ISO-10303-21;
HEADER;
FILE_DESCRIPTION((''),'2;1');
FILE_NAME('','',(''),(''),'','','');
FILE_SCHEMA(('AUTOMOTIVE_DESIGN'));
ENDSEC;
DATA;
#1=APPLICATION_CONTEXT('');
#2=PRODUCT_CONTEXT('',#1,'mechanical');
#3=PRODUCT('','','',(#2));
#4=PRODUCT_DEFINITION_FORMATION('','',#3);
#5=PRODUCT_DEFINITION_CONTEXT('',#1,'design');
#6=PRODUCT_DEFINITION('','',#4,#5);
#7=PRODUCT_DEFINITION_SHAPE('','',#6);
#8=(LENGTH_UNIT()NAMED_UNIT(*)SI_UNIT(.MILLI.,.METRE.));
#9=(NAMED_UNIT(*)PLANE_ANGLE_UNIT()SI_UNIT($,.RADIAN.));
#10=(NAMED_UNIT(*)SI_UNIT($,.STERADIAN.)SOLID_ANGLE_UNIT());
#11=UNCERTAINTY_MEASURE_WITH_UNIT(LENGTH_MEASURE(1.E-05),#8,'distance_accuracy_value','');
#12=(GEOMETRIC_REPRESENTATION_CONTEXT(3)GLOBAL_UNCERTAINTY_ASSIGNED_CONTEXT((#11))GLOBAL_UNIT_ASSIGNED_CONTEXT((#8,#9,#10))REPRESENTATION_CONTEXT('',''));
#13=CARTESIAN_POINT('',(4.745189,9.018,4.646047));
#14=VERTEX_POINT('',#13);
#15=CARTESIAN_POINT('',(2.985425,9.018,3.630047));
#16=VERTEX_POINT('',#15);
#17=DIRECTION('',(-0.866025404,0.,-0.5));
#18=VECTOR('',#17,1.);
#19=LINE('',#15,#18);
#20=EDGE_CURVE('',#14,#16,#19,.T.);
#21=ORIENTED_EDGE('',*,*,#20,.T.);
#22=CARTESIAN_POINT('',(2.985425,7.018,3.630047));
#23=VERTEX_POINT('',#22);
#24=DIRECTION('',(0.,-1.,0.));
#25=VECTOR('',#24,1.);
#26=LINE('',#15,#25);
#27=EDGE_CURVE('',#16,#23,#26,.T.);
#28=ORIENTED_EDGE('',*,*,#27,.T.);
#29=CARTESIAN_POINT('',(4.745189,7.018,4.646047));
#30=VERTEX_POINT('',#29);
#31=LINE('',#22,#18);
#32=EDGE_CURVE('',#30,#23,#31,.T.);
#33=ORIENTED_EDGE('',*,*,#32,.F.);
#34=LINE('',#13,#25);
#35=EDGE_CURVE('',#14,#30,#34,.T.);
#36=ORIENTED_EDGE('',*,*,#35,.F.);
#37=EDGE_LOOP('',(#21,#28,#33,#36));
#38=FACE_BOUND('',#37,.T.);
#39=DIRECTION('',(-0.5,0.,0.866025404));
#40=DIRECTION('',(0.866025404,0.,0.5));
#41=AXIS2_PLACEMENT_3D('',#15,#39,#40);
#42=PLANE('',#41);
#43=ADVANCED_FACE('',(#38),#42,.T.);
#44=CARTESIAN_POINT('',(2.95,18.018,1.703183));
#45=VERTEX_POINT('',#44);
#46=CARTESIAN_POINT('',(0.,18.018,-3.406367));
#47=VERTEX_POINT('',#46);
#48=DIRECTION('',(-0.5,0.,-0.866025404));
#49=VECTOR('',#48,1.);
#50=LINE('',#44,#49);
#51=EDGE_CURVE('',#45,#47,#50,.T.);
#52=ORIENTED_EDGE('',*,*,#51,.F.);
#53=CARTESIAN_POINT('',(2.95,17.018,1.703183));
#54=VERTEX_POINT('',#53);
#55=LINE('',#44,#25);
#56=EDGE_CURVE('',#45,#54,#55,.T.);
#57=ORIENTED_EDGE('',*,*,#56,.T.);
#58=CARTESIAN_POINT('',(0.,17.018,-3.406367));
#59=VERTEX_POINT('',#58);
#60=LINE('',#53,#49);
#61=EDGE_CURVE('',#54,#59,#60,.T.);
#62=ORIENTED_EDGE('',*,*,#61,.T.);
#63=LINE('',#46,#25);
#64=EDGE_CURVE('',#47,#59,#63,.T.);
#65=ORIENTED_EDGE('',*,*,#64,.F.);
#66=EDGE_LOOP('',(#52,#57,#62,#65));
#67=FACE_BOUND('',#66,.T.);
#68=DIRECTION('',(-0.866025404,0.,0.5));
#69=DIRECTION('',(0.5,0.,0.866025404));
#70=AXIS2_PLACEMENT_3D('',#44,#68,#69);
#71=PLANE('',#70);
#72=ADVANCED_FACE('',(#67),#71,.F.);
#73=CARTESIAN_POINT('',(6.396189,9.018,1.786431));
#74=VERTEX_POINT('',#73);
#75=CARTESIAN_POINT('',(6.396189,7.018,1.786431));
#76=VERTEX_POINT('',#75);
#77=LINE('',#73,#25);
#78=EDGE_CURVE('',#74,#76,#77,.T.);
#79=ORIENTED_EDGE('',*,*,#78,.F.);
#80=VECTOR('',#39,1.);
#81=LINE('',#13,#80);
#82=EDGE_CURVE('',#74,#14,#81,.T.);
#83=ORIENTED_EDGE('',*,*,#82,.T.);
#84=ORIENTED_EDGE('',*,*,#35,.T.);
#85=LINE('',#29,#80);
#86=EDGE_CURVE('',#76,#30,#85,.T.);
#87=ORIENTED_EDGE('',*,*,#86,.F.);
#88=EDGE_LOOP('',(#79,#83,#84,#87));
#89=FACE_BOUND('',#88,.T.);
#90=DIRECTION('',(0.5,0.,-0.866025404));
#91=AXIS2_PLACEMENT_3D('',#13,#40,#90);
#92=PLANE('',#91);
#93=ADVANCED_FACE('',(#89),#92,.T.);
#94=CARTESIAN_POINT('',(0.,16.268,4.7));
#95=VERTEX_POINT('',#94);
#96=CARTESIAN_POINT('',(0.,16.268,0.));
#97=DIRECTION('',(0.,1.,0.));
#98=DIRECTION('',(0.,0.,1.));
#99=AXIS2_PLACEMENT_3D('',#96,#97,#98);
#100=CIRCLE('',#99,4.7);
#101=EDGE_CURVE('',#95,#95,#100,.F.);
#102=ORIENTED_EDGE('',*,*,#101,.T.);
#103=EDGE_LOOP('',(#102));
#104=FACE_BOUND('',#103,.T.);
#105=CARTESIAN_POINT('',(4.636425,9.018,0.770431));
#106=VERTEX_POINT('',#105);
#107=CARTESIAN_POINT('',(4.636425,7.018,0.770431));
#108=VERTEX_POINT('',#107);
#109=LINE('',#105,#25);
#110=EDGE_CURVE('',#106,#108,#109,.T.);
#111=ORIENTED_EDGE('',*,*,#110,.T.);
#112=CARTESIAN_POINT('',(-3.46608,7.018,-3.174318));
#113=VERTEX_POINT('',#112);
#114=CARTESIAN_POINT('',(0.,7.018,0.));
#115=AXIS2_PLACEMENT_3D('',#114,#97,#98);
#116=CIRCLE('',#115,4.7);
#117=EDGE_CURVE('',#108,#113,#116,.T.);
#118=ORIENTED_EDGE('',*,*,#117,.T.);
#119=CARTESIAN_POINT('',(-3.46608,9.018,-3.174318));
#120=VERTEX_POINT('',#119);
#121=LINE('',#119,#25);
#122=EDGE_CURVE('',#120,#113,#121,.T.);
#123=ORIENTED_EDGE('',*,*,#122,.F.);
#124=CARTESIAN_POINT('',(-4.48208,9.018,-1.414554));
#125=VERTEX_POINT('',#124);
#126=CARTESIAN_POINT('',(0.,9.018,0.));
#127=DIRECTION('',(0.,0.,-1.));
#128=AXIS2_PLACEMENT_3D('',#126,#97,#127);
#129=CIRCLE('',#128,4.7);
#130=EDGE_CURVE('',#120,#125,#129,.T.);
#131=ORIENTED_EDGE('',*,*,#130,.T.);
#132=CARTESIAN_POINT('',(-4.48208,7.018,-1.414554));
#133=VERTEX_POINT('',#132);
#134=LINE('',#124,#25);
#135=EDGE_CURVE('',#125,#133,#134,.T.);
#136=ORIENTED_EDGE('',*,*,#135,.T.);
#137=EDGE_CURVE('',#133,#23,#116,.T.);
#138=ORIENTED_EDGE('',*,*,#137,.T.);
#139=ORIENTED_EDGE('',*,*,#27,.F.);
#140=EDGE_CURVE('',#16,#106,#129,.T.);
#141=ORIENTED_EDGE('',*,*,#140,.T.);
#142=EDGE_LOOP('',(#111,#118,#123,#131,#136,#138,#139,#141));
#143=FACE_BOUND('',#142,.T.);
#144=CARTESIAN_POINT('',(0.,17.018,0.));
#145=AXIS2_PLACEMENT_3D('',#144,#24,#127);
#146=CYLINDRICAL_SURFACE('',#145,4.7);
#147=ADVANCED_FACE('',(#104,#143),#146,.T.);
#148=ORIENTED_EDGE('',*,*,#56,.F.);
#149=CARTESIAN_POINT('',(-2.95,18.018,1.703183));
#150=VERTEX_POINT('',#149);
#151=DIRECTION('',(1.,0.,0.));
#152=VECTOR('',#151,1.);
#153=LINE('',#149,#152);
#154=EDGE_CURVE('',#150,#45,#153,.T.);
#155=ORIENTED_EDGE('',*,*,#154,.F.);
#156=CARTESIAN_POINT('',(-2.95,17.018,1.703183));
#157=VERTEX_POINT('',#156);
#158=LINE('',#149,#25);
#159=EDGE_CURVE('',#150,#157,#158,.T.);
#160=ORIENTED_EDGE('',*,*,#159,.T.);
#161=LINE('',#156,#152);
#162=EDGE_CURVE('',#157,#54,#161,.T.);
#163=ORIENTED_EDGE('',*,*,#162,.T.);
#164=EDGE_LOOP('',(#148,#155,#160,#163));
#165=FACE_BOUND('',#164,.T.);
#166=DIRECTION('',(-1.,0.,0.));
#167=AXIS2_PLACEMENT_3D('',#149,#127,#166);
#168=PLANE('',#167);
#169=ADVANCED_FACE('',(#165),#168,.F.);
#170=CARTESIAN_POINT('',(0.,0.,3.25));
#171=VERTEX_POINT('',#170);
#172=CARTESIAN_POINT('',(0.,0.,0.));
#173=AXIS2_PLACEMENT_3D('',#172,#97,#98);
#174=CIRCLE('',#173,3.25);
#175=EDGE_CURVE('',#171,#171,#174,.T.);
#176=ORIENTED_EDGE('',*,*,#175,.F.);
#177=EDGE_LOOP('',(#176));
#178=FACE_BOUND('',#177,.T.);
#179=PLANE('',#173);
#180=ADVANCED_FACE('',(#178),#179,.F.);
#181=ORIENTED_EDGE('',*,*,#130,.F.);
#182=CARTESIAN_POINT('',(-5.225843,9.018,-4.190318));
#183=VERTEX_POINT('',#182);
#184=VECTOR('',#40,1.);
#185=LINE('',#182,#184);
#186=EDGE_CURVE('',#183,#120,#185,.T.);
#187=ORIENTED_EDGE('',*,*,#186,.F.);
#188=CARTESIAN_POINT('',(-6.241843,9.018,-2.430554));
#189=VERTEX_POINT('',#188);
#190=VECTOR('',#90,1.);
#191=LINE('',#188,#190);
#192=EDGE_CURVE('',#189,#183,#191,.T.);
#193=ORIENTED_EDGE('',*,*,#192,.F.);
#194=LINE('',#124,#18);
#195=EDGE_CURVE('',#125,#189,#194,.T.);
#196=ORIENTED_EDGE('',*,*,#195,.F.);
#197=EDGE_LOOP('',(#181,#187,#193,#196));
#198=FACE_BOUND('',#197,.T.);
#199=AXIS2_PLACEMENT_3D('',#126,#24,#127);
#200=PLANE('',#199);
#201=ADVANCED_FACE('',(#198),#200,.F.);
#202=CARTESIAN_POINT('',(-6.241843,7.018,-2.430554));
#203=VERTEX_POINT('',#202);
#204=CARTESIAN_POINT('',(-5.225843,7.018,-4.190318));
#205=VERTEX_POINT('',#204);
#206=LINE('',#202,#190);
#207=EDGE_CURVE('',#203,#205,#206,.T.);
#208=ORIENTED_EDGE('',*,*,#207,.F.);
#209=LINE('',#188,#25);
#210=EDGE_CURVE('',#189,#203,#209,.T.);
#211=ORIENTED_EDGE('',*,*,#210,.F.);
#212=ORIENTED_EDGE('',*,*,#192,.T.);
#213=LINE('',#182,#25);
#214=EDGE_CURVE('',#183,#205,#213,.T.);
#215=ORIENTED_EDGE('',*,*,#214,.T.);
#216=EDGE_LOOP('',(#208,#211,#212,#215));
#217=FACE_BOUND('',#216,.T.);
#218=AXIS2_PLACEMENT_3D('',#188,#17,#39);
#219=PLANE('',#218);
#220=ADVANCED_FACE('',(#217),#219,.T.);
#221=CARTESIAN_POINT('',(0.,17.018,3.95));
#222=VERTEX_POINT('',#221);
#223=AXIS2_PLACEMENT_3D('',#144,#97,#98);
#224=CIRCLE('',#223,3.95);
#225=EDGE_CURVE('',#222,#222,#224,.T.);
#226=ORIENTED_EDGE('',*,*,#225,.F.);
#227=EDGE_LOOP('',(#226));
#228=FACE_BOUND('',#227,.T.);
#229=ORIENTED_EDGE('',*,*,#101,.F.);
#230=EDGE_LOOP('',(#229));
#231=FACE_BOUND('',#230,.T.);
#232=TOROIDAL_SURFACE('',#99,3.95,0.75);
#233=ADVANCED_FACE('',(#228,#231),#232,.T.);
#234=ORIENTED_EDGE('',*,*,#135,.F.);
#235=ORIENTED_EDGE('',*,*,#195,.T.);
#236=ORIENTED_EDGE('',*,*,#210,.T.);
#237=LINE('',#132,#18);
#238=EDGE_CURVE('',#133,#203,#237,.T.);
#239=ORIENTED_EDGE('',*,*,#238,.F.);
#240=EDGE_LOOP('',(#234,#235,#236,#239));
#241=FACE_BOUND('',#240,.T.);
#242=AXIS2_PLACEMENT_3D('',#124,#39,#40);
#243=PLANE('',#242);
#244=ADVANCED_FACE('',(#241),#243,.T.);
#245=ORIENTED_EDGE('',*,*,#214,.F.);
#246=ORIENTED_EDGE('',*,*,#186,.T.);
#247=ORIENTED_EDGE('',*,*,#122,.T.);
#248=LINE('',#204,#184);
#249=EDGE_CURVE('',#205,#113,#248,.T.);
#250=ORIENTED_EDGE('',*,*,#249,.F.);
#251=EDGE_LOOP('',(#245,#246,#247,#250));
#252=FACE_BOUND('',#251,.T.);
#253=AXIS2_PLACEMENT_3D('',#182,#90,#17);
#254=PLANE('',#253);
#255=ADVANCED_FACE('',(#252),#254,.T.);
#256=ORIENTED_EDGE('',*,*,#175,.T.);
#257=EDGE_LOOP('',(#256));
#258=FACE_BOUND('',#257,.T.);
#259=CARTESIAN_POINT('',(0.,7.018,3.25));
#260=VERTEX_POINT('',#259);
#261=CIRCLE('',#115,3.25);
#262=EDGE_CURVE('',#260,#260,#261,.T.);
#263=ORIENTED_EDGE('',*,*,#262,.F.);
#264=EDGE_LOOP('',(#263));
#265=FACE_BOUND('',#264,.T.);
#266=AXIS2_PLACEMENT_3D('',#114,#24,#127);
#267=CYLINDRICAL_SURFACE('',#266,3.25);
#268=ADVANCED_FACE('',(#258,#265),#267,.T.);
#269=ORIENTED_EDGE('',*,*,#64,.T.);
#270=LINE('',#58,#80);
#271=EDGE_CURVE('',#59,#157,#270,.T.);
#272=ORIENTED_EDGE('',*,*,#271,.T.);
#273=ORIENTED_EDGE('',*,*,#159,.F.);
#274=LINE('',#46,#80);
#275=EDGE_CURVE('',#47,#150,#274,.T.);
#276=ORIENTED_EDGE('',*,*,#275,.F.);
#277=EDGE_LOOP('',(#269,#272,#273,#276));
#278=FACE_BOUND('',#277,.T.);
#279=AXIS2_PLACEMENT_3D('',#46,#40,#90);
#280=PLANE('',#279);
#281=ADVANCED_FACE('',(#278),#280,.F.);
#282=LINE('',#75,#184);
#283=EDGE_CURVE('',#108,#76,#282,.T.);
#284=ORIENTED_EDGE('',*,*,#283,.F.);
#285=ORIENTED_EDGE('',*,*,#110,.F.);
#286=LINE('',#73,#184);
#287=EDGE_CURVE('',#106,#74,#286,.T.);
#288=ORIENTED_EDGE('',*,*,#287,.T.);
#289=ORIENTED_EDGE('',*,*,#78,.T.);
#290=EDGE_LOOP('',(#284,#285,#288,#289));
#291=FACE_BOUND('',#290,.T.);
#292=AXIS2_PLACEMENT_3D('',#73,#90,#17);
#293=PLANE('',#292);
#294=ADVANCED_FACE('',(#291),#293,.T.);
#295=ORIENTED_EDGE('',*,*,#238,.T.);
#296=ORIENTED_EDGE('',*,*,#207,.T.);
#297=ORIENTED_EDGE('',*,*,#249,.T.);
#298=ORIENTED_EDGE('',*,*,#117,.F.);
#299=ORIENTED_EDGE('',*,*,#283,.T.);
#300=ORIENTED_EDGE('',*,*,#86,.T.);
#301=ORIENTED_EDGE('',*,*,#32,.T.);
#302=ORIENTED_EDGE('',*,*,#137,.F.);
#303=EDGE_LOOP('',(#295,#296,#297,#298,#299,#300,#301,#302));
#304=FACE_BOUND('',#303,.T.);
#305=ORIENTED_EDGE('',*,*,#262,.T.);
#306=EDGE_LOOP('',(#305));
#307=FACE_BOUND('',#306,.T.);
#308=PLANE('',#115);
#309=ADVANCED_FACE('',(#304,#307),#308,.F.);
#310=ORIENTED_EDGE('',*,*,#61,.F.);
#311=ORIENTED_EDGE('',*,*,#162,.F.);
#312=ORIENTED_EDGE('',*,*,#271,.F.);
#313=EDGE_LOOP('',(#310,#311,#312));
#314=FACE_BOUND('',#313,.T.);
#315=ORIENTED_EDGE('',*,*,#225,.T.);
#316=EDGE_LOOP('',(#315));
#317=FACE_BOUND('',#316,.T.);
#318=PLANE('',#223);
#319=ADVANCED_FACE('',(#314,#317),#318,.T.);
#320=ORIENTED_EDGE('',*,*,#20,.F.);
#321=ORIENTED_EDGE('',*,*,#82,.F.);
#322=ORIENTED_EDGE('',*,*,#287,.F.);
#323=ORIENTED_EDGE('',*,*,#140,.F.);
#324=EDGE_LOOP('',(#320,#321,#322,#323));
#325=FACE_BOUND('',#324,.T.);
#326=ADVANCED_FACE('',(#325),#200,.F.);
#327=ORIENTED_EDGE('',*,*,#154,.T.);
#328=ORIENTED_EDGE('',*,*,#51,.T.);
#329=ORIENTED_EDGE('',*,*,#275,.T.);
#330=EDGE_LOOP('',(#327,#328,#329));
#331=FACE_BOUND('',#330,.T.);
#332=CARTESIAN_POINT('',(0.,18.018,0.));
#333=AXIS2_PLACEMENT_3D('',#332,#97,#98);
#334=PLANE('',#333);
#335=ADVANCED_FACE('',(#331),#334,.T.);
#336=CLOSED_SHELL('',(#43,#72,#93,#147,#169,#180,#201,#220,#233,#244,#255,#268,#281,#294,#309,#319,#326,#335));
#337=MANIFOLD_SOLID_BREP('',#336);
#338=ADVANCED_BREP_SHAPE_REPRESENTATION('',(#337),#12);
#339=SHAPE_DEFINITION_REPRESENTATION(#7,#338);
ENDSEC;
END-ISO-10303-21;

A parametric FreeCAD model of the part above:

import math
import FreeCAD as App
import Part
import Sketcher

V = App.Vector
Q = App.Units.Quantity


def edges_at(feature, points):
    """Names of the edges that pass closest to the given points."""
    edges = feature.Shape.Edges
    near = lambda p: min(range(len(edges)), key=lambda i: edges[i].distToShape(Part.Vertex(*p))[0])
    return sorted({f"Edge{near(p) + 1}" for p in points})


def add_polygon(sketch, points):
    """Adds a closed chain of lines whose ends are joined by coincident constraints."""
    first, n = sketch.GeometryCount, len(points)
    for a, b in zip(points, points[1:] + points[:1]):
        sketch.addGeometry(Part.LineSegment(App.Vector(*a, 0), App.Vector(*b, 0)), False)
    for i in range(n):
        sketch.addConstraint(Sketcher.Constraint("Coincident", first + i, 2, first + (i + 1) % n, 1))

doc = App.newDocument("Part")
body = doc.addObject("PartDesign::Body", "Body")

# Sketch on XZ plane
sketch1 = body.newObject("Sketcher::SketchObject", "Sketch")
sketch1.AttachmentSupport = (doc.getObject("XZ_Plane"), [""])
sketch1.MapMode = "FlatFace"
sketch1.addGeometry(Part.Circle(V(0, 0, 0), V(0, 0, 1), 3.25), False)
sketch1.addConstraint([
    Sketcher.Constraint("Coincident", 0, 3, -1, 1),
    Sketcher.Constraint("Diameter", 0, 6.5),
])
pad1 = body.newObject("PartDesign::Pad", "Pad")
pad1.Profile = sketch1
pad1.Length = 7.018
pad1.Reversed = True

# Sketch on XZ plane
sketch2 = body.newObject("Sketcher::SketchObject", "Sketch001")
sketch2.AttachmentSupport = (doc.getObject("XZ_Plane"), [""])
sketch2.MapMode = "FlatFace"
sketch2.AttachmentOffset = App.Placement(V(0, 0, -7.018), App.Rotation())
sketch2.addGeometry(Part.Circle(V(0, 0, 0), V(0, 0, 1), 4.7), False)
sketch2.addConstraint([
    Sketcher.Constraint("Coincident", 0, 3, -1, 1),
    Sketcher.Constraint("Diameter", 0, 9.4),
])
pad2 = body.newObject("PartDesign::Pad", "Pad001")
pad2.Profile = sketch2
pad2.Length = 10
pad2.Reversed = True

# Sketch on XZ plane
sketch3 = body.newObject("Sketcher::SketchObject", "Sketch002")
sketch3.AttachmentSupport = (doc.getObject("XZ_Plane"), [""])
sketch3.MapMode = "FlatFace"
sketch3.AttachmentOffset = App.Placement(V(0, 0, -17.018), App.Rotation())
add_polygon(sketch3, [(2.95, 1.703183), (0, -3.406367), (-2.95, 1.703183)])  # lines 0-2
sketch3.addConstraint([
    Sketcher.Constraint("Horizontal", 2),
    Sketcher.Constraint("PointOnObject", 0, 2, -2),
    Sketcher.Constraint("Equal", 0, 1),
    Sketcher.Constraint("Angle", 0, Q("-120 deg")),
    Sketcher.Constraint("DistanceX", 2, 1, 2, 2, 5.9),
    Sketcher.Constraint("DistanceY", 0, 2, -1, 1, 3.406367),
])
pad3 = body.newObject("PartDesign::Pad", "Pad002")
pad3.Profile = sketch3
pad3.Length = 1
pad3.Reversed = True
doc.recompute()

fillet = body.newObject("PartDesign::Fillet", "Fillet")
fillet.Base = (pad3, edges_at(pad3, [(-4.7, 17.018, 0)]))
fillet.Radius = 0.75

# Sketch on XZ plane
sketch4 = body.newObject("Sketcher::SketchObject", "Sketch003")
sketch4.AttachmentSupport = (doc.getObject("XZ_Plane"), [""])
sketch4.MapMode = "FlatFace"
sketch4.AttachmentOffset = App.Placement(V(0, 0, -7.018), App.Rotation())
sketch4.addGeometry([
    Part.LineSegment(V(-4.48208, -1.414554, 0), V(-6.241843, -2.430554, 0)),  # 0
    Part.LineSegment(V(-6.241843, -2.430554, 0), V(-5.225843, -4.190318, 0)),  # 1
    Part.LineSegment(V(-5.225843, -4.190318, 0), V(-3.46608, -3.174318, 0)),  # 2
    Part.ArcOfCircle(Part.Circle(V(0, 0, 0), V(0, 0, 1), 4.7), math.radians(-162.48419), math.radians(-137.51581)),  # 3
    Part.LineSegment(V(4.745189, 4.646047, 0), V(2.985425, 3.630047, 0)),  # 4
    Part.ArcOfCircle(Part.Circle(V(0, 0, 0), V(0, 0, 1), 4.7), math.radians(9.434583), math.radians(50.565417)),  # 5
    Part.LineSegment(V(4.636425, 0.770431, 0), V(6.396189, 1.786431, 0)),  # 6
    Part.LineSegment(V(6.396189, 1.786431, 0), V(4.745189, 4.646047, 0)),  # 7
], False)
sketch4.addConstraint([
    Sketcher.Constraint("Coincident", 0, 2, 1, 1),
    Sketcher.Constraint("Coincident", 1, 2, 2, 1),
    Sketcher.Constraint("Coincident", 2, 2, 3, 2),
    Sketcher.Constraint("Coincident", 3, 1, 0, 1),
    Sketcher.Constraint("Coincident", 4, 2, 5, 2),
    Sketcher.Constraint("Coincident", 5, 1, 6, 1),
    Sketcher.Constraint("Coincident", 6, 2, 7, 1),
    Sketcher.Constraint("Coincident", 7, 2, 4, 1),
    Sketcher.Constraint("Coincident", 3, 3, -1, 1),
    Sketcher.Constraint("Coincident", 5, 3, -1, 1),
    Sketcher.Constraint("Equal", 3, 5),
    Sketcher.Constraint("Perpendicular", 0, 1),
    Sketcher.Constraint("Perpendicular", 1, 2),
    Sketcher.Constraint("Parallel", 2, 4),
    Sketcher.Constraint("Parallel", 4, 6),
    Sketcher.Constraint("Perpendicular", 6, 7),
    Sketcher.Constraint("Equal", 0, 1),
    Sketcher.Constraint("Equal", 1, 2),
    Sketcher.Constraint("Equal", 2, 4),
    Sketcher.Constraint("Equal", 4, 6),
    Sketcher.Constraint("Radius", 3, 4.7),
    Sketcher.Constraint("Angle", 0, Q("-150 deg")),
    Sketcher.Constraint("Distance", 0, 2.032),
    Sketcher.Constraint("Distance", 7, 3.302),
])
pad4 = body.newObject("PartDesign::Pad", "Pad003")
pad4.Profile = sketch4
pad4.Length = 2
pad4.Reversed = True

doc.recompute()
